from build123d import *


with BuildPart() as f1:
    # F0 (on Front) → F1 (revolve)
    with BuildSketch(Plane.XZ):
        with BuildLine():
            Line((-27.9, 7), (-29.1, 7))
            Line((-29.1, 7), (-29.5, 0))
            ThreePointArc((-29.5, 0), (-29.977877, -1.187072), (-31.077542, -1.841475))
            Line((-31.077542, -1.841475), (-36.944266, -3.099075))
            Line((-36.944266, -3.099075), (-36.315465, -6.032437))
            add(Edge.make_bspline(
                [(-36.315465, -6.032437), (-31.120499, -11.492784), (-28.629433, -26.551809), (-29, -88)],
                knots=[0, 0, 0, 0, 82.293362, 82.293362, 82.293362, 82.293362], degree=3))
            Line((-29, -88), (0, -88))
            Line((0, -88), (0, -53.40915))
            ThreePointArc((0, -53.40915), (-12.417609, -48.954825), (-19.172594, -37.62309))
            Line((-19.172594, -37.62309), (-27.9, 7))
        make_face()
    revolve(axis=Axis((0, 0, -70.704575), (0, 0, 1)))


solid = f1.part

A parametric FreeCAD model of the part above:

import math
import FreeCAD as App
import Part
import Sketcher

V = App.Vector

doc = App.newDocument("Part")
body = doc.addObject("PartDesign::Body", "Body")

sketch1 = body.newObject("Sketcher::SketchObject", "Sketch")
sketch1.AttachmentSupport = (doc.getObject("XZ_Plane"), [""])
sketch1.MapMode = "FlatFace"
sketch1.addGeometry([
    Part.LineSegment(V(-27.9, 7, 0), V(-29.1, 7, 0)),
    Part.LineSegment(V(-29.1, 7, 0), V(-29.5, 0, 0)),
    Part.ArcOfCircle(Part.Circle(V(-31.496743, 0.1141, 0), V(0, 0, 1), 2), math.radians(-77.901061), math.radians(-3.270486)),
    Part.LineSegment(V(-31.077542, -1.841475, 0), V(-36.944266, -3.099075, 0)),
    Part.LineSegment(V(-36.944266, -3.099075, 0), V(-36.315465, -6.032437, 0)),
    Part.BSplineCurve([V(-36.315465, -6.032437, 0), V(-31.120499, -11.492784, 0), V(-28.629433, -26.551809, 0), V(-29, -88, 0)], [4, 4], [0, 82.293362], False, 3, [1, 1, 1, 1], False),
    Part.LineSegment(V(-29, -88, 0), V(0, -88, 0)),
    Part.LineSegment(V(0, -88, 0), V(0, -53.40915, 0)),
    Part.ArcOfCircle(Part.Circle(V(-0.000001, -33.873306, 0), V(0, 0, 1), 19.535844), math.radians(-168.933757), math.radians(-89.999997)),
    Part.LineSegment(V(-19.172594, -37.62309, 0), V(-27.9, 7, 0)),
], False)
sketch1.addConstraint([
    Sketcher.Constraint("Block", 5),
    Sketcher.Constraint("Coincident", 0, 2, 1, 1),
    Sketcher.Constraint("Tangent", 1, 2, 2, 2),
    Sketcher.Constraint("Tangent", 2, 1, 3, 1),
    Sketcher.Constraint("Coincident", 3, 2, 4, 1),
    Sketcher.Constraint("Coincident", 4, 2, 5, 1),
    Sketcher.Constraint("Coincident", 5, 2, 6, 1),
    Sketcher.Constraint("Coincident", 6, 2, 7, 1),
    Sketcher.Constraint("Coincident", 7, 2, 8, 2),
    Sketcher.Constraint("Tangent", 8, 1, 9, 1),
    Sketcher.Constraint("Coincident", 9, 2, 0, 1),
    Sketcher.Constraint("Horizontal", 0),
    Sketcher.Constraint("Horizontal", 6),
    Sketcher.Constraint("Vertical", 7),
    Sketcher.Constraint("PointOnObject", 8, 3, -2),
    Sketcher.Constraint("PointOnObject", 1, 2, -1),
    Sketcher.Constraint("PointOnObject", 6, 2, -2),
    Sketcher.Constraint("Perpendicular", 3, 4),
    Sketcher.Constraint("Radius", 2, 2.0),
    Sketcher.Constraint("Distance", 3, 6.000001),
    Sketcher.Constraint("Distance", 4, 3.000001),
    Sketcher.Constraint("DistanceX", 0, 2, 0, 1, 1.2),
    Sketcher.Constraint("DistanceY", -1, 1, 0, 2, 7.0),
    Sketcher.Constraint("DistanceX", 0, 2, -1, 1, 29.1),
    Sketcher.Constraint("Radius", 8, 19.535844),
    Sketcher.Constraint("DistanceY", 7, 1, 7, 2, 34.59085),
])
revolution = body.newObject("PartDesign::Revolution", "Revolution")
revolution.Profile = sketch1
revolution.ReferenceAxis = (sketch1, ["V_Axis"])
revolution.Angle = 360

doc.recompute()
